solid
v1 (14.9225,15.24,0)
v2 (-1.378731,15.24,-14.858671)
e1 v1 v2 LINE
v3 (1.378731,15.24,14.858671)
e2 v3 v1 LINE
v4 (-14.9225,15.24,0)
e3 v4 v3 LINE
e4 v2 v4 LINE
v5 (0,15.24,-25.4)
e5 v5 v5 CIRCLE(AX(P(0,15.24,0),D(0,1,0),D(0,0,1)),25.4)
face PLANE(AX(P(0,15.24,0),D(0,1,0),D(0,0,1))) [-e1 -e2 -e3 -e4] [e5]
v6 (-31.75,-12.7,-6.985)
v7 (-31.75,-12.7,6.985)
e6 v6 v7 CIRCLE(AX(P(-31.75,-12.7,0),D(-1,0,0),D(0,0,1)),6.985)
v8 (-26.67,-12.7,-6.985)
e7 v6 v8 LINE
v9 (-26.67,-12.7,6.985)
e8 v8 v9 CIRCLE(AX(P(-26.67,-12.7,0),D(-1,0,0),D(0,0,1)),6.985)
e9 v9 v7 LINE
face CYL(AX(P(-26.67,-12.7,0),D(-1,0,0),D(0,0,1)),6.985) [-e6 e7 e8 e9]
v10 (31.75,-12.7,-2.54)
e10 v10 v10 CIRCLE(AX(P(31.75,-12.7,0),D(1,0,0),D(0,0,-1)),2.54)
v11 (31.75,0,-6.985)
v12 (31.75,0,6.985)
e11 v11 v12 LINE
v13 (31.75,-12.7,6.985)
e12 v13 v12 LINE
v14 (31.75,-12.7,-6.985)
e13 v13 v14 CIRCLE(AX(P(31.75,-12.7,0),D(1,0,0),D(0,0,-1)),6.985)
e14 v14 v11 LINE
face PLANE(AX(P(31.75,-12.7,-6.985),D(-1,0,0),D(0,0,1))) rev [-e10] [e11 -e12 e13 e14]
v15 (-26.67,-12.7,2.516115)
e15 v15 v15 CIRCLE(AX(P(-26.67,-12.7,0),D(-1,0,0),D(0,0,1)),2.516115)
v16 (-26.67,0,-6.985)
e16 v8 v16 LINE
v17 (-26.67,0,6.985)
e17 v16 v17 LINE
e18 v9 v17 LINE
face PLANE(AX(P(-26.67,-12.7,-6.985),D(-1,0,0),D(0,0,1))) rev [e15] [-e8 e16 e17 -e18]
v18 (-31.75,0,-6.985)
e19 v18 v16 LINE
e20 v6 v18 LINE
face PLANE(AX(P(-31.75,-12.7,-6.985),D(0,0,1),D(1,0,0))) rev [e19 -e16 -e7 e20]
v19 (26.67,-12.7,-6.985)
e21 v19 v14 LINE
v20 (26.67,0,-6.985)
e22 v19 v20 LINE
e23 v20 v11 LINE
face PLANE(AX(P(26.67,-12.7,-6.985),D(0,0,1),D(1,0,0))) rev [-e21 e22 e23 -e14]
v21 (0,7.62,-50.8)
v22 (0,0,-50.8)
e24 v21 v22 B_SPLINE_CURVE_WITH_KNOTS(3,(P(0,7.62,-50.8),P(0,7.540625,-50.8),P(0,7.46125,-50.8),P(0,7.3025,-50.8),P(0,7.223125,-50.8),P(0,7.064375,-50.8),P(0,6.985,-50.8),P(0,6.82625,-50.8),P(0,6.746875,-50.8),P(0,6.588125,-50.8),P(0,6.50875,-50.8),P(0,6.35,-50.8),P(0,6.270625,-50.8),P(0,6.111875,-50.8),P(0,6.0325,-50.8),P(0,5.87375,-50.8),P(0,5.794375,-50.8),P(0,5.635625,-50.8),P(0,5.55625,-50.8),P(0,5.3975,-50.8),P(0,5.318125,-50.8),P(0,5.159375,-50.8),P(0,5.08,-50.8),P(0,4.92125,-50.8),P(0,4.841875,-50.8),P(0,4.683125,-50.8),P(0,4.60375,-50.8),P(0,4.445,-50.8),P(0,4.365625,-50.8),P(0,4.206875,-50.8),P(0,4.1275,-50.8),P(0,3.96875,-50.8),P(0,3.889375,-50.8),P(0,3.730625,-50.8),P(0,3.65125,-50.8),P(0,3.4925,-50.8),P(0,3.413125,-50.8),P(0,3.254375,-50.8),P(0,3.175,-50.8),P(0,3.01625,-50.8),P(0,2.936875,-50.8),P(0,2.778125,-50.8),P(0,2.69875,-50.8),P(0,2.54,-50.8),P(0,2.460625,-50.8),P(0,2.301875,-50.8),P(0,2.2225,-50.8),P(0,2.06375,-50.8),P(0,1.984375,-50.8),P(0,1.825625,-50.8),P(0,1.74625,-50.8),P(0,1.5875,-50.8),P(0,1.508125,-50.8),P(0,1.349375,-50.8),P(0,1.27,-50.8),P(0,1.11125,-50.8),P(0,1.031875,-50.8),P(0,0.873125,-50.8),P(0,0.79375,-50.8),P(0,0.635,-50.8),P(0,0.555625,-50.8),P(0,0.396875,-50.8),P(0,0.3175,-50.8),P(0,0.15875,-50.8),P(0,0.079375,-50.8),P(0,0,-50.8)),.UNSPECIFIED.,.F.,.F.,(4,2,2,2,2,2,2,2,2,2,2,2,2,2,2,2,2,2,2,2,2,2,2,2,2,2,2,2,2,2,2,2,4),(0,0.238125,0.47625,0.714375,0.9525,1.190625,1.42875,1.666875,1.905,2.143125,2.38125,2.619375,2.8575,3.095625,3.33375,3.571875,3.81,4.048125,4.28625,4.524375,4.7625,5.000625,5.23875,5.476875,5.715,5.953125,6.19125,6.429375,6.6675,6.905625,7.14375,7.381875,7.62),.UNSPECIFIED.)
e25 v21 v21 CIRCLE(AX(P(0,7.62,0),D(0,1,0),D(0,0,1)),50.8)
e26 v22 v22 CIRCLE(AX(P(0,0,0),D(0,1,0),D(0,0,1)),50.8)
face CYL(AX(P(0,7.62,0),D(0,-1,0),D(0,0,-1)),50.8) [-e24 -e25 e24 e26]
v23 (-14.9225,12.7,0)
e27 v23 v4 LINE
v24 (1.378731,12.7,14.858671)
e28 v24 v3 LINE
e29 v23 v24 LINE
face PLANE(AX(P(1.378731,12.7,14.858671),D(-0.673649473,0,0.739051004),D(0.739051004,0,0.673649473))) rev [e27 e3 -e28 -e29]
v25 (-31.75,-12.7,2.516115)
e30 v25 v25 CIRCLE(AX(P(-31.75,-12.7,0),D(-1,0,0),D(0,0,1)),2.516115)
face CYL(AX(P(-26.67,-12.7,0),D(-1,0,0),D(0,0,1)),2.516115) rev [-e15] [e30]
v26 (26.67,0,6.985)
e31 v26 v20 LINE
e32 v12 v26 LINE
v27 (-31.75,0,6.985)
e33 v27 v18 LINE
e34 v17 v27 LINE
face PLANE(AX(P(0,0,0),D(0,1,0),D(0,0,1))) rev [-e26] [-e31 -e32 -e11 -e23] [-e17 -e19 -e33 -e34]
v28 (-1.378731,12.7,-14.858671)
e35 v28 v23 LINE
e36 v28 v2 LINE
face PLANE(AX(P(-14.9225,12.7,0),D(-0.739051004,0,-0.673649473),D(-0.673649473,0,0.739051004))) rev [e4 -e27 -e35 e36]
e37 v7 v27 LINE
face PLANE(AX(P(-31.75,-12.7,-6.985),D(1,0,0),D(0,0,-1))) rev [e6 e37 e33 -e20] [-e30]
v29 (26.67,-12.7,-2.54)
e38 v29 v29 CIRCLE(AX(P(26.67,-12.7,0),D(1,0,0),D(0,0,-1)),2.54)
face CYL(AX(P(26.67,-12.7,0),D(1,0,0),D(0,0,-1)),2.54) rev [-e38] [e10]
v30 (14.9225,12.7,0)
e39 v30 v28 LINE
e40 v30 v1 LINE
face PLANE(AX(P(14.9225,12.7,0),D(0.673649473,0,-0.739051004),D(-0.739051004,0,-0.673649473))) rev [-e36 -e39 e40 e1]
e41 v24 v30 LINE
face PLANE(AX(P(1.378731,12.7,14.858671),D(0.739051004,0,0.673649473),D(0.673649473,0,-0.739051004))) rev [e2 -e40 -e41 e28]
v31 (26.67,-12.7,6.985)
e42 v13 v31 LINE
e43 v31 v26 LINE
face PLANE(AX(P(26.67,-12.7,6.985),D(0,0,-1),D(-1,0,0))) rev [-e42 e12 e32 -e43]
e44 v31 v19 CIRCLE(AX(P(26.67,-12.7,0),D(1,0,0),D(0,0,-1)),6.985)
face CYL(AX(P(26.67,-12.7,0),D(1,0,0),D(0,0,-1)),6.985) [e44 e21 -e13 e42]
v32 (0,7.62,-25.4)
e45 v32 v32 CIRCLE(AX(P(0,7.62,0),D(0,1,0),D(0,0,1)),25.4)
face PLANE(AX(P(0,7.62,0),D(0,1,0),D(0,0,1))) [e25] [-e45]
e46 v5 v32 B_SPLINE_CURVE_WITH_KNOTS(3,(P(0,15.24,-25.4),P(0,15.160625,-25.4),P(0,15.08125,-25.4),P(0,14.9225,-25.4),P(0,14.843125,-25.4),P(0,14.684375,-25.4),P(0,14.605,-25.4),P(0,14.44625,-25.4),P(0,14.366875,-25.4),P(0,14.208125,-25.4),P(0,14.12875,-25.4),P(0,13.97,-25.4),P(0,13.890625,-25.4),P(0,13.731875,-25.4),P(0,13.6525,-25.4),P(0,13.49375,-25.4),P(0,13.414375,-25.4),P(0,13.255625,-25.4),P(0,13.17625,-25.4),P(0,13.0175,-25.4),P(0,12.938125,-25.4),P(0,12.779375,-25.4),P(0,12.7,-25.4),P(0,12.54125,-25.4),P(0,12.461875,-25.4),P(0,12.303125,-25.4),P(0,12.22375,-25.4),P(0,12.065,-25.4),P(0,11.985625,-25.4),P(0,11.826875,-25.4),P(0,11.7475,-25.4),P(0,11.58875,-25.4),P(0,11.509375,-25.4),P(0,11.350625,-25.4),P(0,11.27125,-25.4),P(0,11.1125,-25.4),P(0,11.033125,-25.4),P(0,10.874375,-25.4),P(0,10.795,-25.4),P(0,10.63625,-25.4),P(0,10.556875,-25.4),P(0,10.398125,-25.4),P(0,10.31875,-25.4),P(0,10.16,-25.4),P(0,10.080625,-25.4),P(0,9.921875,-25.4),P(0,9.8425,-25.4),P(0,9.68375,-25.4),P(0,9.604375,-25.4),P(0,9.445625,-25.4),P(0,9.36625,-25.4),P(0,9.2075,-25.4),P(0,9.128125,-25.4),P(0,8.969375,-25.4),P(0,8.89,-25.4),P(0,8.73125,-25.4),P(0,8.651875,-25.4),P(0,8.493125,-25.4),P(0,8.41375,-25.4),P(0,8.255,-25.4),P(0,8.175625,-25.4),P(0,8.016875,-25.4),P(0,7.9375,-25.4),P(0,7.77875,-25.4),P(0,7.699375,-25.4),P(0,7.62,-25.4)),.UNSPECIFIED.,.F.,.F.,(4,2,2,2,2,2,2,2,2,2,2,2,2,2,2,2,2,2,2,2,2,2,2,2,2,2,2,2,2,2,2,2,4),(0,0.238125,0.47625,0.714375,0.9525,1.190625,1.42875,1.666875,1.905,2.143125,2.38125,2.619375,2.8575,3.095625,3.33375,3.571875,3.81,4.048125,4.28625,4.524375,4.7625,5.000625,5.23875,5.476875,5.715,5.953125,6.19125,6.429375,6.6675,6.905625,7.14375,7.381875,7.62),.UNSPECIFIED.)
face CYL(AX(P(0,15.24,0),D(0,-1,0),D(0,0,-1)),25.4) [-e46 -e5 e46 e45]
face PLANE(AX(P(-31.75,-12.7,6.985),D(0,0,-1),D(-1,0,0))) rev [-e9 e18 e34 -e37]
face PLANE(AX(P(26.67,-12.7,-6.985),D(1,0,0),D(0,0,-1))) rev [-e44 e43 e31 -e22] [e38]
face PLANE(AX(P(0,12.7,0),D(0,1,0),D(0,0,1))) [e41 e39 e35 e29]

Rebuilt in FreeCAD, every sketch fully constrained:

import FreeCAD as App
import Part
import Sketcher
from FreeCAD import Vector
Q = App.Units.Quantity

doc = App.newDocument("Part")
body = doc.addObject("PartDesign::Body", "Body")

sketch1 = body.newObject("Sketcher::SketchObject", "Sketch")
sketch1.AttachmentSupport = (doc.getObject("XZ_Plane"), [""])
sketch1.MapMode = "FlatFace"
sketch1.addGeometry(Part.Circle(Vector(0, 0, 0), Vector(0, 0, 1), 51), False)
sketch1.addConstraint(Sketcher.Constraint("Coincident", 0, 3, -1, 1))
sketch1.addConstraint(Sketcher.Constraint("Diameter", 0, Q("4 in")))
pad1 = body.newObject("PartDesign::Pad", "Pad")
pad1.Profile = sketch1
pad1.Length = Q("0.3 in")
pad1.Reversed = True

sketch2 = body.newObject("Sketcher::SketchObject", "Sketch001")
sketch2.AttachmentSupport = (doc.getObject("XZ_Plane"), [""])
sketch2.MapMode = "FlatFace"
sketch2.addGeometry(Part.LineSegment(Vector(-32, 7, 0), Vector(-32, -7, 0)), False)
sketch2.addGeometry(Part.LineSegment(Vector(-32, -7, 0), Vector(-27, -7, 0)), False)
sketch2.addGeometry(Part.LineSegment(Vector(-27, -7, 0), Vector(-27, 7, 0)), False)
sketch2.addGeometry(Part.LineSegment(Vector(-27, 7, 0), Vector(-32, 7, 0)), False)
sketch2.addConstraint(Sketcher.Constraint("Coincident", 0, 2, 1, 1))
sketch2.addConstraint(Sketcher.Constraint("Coincident", 1, 2, 2, 1))
sketch2.addConstraint(Sketcher.Constraint("Coincident", 2, 2, 3, 1))
sketch2.addConstraint(Sketcher.Constraint("Coincident", 3, 2, 0, 1))
sketch2.addConstraint(Sketcher.Constraint("Vertical", 0))
sketch2.addConstraint(Sketcher.Constraint("Horizontal", 1))
sketch2.addConstraint(Sketcher.Constraint("Vertical", 2))
sketch2.addConstraint(Sketcher.Constraint("Horizontal", 3))
sketch2.addConstraint(Sketcher.Constraint("DistanceX", 1, 1, 1, 2, Q("0.2 in")))
sketch2.addConstraint(Sketcher.Constraint("DistanceY", 0, 2, 0, 1, Q("0.55 in")))
sketch2.addConstraint(Sketcher.Constraint("DistanceX", 0, 2, -1, 1, Q("1.25 in")))
sketch2.addConstraint(Sketcher.Constraint("DistanceY", 0, 2, -1, 1, Q("0.275 in")))
pad2 = body.newObject("PartDesign::Pad", "Pad001")
pad2.Profile = sketch2
pad2.Length = Q("0.5 in")

sketch3 = body.newObject("Sketcher::SketchObject", "Sketch002")
sketch3.AttachmentSupport = (doc.getObject("YZ_Plane"), [""])
sketch3.MapMode = "FlatFace"
sketch3.AttachmentOffset = App.Placement(Vector(0, 0, -1.25 * 25.4), App.Rotation())
sketch3.addGeometry(Part.Circle(Vector(-13, 0, 0), Vector(0, 0, 1), 7), False)
sketch3.addConstraint(Sketcher.Constraint("PointOnObject", 0, 3, -1))
sketch3.addConstraint(Sketcher.Constraint("Diameter", 0, Q("0.55 in")))
sketch3.addConstraint(Sketcher.Constraint("DistanceX", 0, 3, -1, 1, Q("0.5 in")))
pad3 = body.newObject("PartDesign::Pad", "Pad002")
pad3.Profile = sketch3
pad3.Length = Q("0.2 in")

sketch4 = body.newObject("Sketcher::SketchObject", "Sketch003")
sketch4.AttachmentSupport = (doc.getObject("YZ_Plane"), [""])
sketch4.MapMode = "FlatFace"
sketch4.AttachmentOffset = App.Placement(Vector(0, 0, -1.25 * 25.4), App.Rotation())
sketch4.addGeometry(Part.Circle(Vector(-12.7, 0, 0), Vector(0, 0, 1), 2.5), False)
sketch4.addConstraint(Sketcher.Constraint("PointOnObject", 0, 3, -1))
sketch4.addConstraint(Sketcher.Constraint("DistanceX", 0, 3, -1, 1, Q("0.5 in")))
sketch4.addConstraint(Sketcher.Constraint("Diameter", 0, Q("5.03223 mm")))
pocket1 = body.newObject("PartDesign::Pocket", "Pocket")
pocket1.Profile = sketch4
pocket1.Length = Q("0.2 in")
pocket1.Reversed = True

sketch5 = body.newObject("Sketcher::SketchObject", "Sketch004")
sketch5.AttachmentSupport = (doc.getObject("XZ_Plane"), [""])
sketch5.MapMode = "FlatFace"
sketch5.addGeometry(Part.LineSegment(Vector(27, 7, 0), Vector(27, -7, 0)), False)
sketch5.addGeometry(Part.LineSegment(Vector(27, -7, 0), Vector(32, -7, 0)), False)
sketch5.addGeometry(Part.LineSegment(Vector(32, -7, 0), Vector(32, 7, 0)), False)
sketch5.addGeometry(Part.LineSegment(Vector(32, 7, 0), Vector(27, 7, 0)), False)
sketch5.addConstraint(Sketcher.Constraint("Coincident", 0, 2, 1, 1))
sketch5.addConstraint(Sketcher.Constraint("Coincident", 1, 2, 2, 1))
sketch5.addConstraint(Sketcher.Constraint("Coincident", 2, 2, 3, 1))
sketch5.addConstraint(Sketcher.Constraint("Coincident", 3, 2, 0, 1))
sketch5.addConstraint(Sketcher.Constraint("Vertical", 0))
sketch5.addConstraint(Sketcher.Constraint("Horizontal", 1))
sketch5.addConstraint(Sketcher.Constraint("Vertical", 2))
sketch5.addConstraint(Sketcher.Constraint("Horizontal", 3))
sketch5.addConstraint(Sketcher.Constraint("DistanceX", 1, 1, 1, 2, Q("0.2 in")))
sketch5.addConstraint(Sketcher.Constraint("DistanceY", 0, 2, 0, 1, Q("0.55 in")))
sketch5.addConstraint(Sketcher.Constraint("DistanceX", -1, 1, 0, 2, Q("1.05 in")))
sketch5.addConstraint(Sketcher.Constraint("DistanceY", 0, 2, -1, 1, Q("0.275 in")))
pad4 = body.newObject("PartDesign::Pad", "Pad003")
pad4.Profile = sketch5
pad4.Length = Q("0.5 in")

sketch6 = body.newObject("Sketcher::SketchObject", "Sketch005")
sketch6.AttachmentSupport = (doc.getObject("YZ_Plane"), [""])
sketch6.MapMode = "FlatFace"
sketch6.AttachmentOffset = App.Placement(Vector(0, 0, 1.05 * 25.4), App.Rotation())
sketch6.addGeometry(Part.Circle(Vector(-13, 0, 0), Vector(0, 0, 1), 7), False)
sketch6.addConstraint(Sketcher.Constraint("PointOnObject", 0, 3, -1))
sketch6.addConstraint(Sketcher.Constraint("Diameter", 0, Q("0.55 in")))
sketch6.addConstraint(Sketcher.Constraint("DistanceX", 0, 3, -1, 1, Q("0.5 in")))
pad5 = body.newObject("PartDesign::Pad", "Pad004")
pad5.Profile = sketch6
pad5.Length = Q("0.2 in")

sketch7 = body.newObject("Sketcher::SketchObject", "Sketch006")
sketch7.AttachmentSupport = (doc.getObject("YZ_Plane"), [""])
sketch7.MapMode = "FlatFace"
sketch7.AttachmentOffset = App.Placement(Vector(0, 0, 1.25 * 25.4), App.Rotation())
sketch7.addGeometry(Part.Circle(Vector(-12.7, 0, 0), Vector(0, 0, 1), 2.5), False)
sketch7.addConstraint(Sketcher.Constraint("PointOnObject", 0, 3, -1))
sketch7.addConstraint(Sketcher.Constraint("Diameter", 0, Q("0.2 in")))
sketch7.addConstraint(Sketcher.Constraint("DistanceX", 0, 3, -1, 1, Q("0.5 in")))
pocket2 = body.newObject("PartDesign::Pocket", "Pocket001")
pocket2.Profile = sketch7
pocket2.Length = Q("0.2 in")

sketch8 = body.newObject("Sketcher::SketchObject", "Sketch007")
sketch8.AttachmentSupport = (doc.getObject("XZ_Plane"), [""])
sketch8.MapMode = "FlatFace"
sketch8.AttachmentOffset = App.Placement(Vector(0, 0, -0.3 * 25.4), App.Rotation())
sketch8.addGeometry(Part.Circle(Vector(0, 0, 0), Vector(0, 0, 1), 25), False)
sketch8.addConstraint(Sketcher.Constraint("Coincident", 0, 3, -1, 1))
sketch8.addConstraint(Sketcher.Constraint("Diameter", 0, Q("2 in")))
pad6 = body.newObject("PartDesign::Pad", "Pad005")
pad6.Profile = sketch8
pad6.Length = Q("0.3 in")
pad6.Reversed = True

sketch9 = body.newObject("Sketcher::SketchObject", "Sketch008")
sketch9.AttachmentSupport = (doc.getObject("XZ_Plane"), [""])
sketch9.MapMode = "FlatFace"
sketch9.AttachmentOffset = App.Placement(Vector(0, 0, -0.6 * 25.4), App.Rotation())
sketch9.addGeometry(Part.LineSegment(Vector(-15, 0, 0), Vector(1, 15, 0)), False)
sketch9.addGeometry(Part.LineSegment(Vector(1, 15, 0), Vector(15, 0, 0)), False)
sketch9.addGeometry(Part.LineSegment(Vector(15, 0, 0), Vector(-1, -15, 0)), False)
sketch9.addGeometry(Part.LineSegment(Vector(-1, -15, 0), Vector(-15, 0, 0)), False)
sketch9.addConstraint(Sketcher.Constraint("Coincident", 0, 2, 1, 1))
sketch9.addConstraint(Sketcher.Constraint("Coincident", 1, 2, 2, 1))
sketch9.addConstraint(Sketcher.Constraint("Coincident", 2, 2, 3, 1))
sketch9.addConstraint(Sketcher.Constraint("Coincident", 3, 2, 0, 1))
sketch9.addConstraint(Sketcher.Constraint("Symmetric", 0, 2, 2, 2, -1, 1))
sketch9.addConstraint(Sketcher.Constraint("Symmetric", 1, 2, 3, 2, -1, 1))
sketch9.addConstraint(Sketcher.Constraint("PointOnObject", 1, 2, -1))
sketch9.addConstraint(Sketcher.Constraint("Perpendicular", 0, 1))
sketch9.addConstraint(Sketcher.Constraint("DistanceX", 3, 2, 1, 2, Q("1.175 in")))
sketch9.addConstraint(Sketcher.Constraint("Distance", 1, Q("20.105069 mm")))
pocket3 = body.newObject("PartDesign::Pocket", "Pocket002")
pocket3.Profile = sketch9
pocket3.Length = Q("0.1 in")
pocket3.Reversed = True

doc.recompute()
